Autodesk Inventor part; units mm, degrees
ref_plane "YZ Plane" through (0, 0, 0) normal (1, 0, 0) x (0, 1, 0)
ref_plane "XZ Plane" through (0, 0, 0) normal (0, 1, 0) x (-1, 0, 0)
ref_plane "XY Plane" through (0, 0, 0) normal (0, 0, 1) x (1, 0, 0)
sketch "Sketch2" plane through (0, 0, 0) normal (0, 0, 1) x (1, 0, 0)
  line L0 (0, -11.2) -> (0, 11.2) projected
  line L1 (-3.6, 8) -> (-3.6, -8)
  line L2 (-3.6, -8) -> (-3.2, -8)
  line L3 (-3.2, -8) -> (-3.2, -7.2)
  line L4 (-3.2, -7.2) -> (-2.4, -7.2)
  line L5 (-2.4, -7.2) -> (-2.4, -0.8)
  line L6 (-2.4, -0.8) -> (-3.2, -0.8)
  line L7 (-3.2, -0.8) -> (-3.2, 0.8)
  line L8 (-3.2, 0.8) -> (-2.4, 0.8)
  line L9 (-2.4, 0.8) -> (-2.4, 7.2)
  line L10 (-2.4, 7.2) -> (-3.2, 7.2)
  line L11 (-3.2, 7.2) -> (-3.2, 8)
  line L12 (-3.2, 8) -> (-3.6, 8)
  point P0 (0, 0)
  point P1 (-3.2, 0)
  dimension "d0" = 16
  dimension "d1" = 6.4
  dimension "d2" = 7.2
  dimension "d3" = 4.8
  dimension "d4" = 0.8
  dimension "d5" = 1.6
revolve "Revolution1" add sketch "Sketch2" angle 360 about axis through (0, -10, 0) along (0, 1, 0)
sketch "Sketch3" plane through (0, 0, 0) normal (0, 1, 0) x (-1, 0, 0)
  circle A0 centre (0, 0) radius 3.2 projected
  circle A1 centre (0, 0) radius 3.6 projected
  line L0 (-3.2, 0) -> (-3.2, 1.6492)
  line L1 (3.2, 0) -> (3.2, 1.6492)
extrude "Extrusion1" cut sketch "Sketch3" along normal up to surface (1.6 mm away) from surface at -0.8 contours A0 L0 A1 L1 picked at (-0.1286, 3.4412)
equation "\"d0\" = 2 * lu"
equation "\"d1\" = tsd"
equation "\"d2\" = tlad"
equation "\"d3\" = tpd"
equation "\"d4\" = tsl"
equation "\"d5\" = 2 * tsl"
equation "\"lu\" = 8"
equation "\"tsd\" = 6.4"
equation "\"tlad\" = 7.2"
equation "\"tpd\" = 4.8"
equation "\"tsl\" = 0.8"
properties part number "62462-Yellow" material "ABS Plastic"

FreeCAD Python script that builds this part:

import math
import FreeCAD as App
import Part
import Sketcher
from FreeCAD import Vector
Q = App.Units.Quantity


def add_polygon(sketch, points):
    """Adds a closed chain of lines whose ends are joined by coincident constraints."""
    first, n = sketch.GeometryCount, len(points)
    for a, b in zip(points, points[1:] + points[:1]):
        sketch.addGeometry(Part.LineSegment(App.Vector(*a, 0), App.Vector(*b, 0)), False)
    for i in range(n):
        sketch.addConstraint(Sketcher.Constraint("Coincident", first + i, 2, first + (i + 1) % n, 1))

doc = App.newDocument("Part")
body = doc.addObject("PartDesign::Body", "Body")

sketch1 = body.newObject("Sketcher::SketchObject", "Sketch")
sketch1.AttachmentSupport = (doc.getObject("XY_Plane"), [""])
sketch1.MapMode = "FlatFace"
add_polygon(sketch1, [(-3.2, 8), (-3.6, 8), (-3.6, -8), (-3.2, -8), (-3.2, -7.2), (-2.4, -7.2), (-2.4, -0.8), (-3.2, -0.8), (-3.2, 0.8), (-2.4, 0.8), (-2.4, 7.2), (-3.2, 7.2)])
sketch1.addConstraint(Sketcher.Constraint("Horizontal", 0))
sketch1.addConstraint(Sketcher.Constraint("Vertical", 1))
sketch1.addConstraint(Sketcher.Constraint("Horizontal", 2))
sketch1.addConstraint(Sketcher.Constraint("Vertical", 3))
sketch1.addConstraint(Sketcher.Constraint("Horizontal", 4))
sketch1.addConstraint(Sketcher.Constraint("Vertical", 5))
sketch1.addConstraint(Sketcher.Constraint("Horizontal", 6))
sketch1.addConstraint(Sketcher.Constraint("Vertical", 7))
sketch1.addConstraint(Sketcher.Constraint("Horizontal", 8))
sketch1.addConstraint(Sketcher.Constraint("Vertical", 9))
sketch1.addConstraint(Sketcher.Constraint("Horizontal", 10))
sketch1.addConstraint(Sketcher.Constraint("Vertical", 11))
sketch1.addConstraint(Sketcher.Constraint("Symmetric", 5, 2, 8, 2, -1))
sketch1.addConstraint(Sketcher.Constraint("Symmetric", 3, 2, 10, 2, -1))
sketch1.addConstraint(Sketcher.Constraint("Vertical", 3, 2, 6, 2))
sketch1.addConstraint(Sketcher.Constraint("Equal", 10, 3))
sketch1.addConstraint(Sketcher.Constraint("Equal", 3, 11))
sketch1.addConstraint(Sketcher.Constraint("DistanceY", 1, 2, 1, 1, Q("16 mm")))
sketch1.addConstraint(Sketcher.Constraint("DistanceX", 4, 1, 4, 2, Q("0.8 mm")))
sketch1.addConstraint(Sketcher.Constraint("DistanceY", 5, 1, 5, 2, Q("6.4 mm")))
sketch1.addConstraint(Sketcher.Constraint("DistanceX", 0, 2, 0, 1, Q("0.4 mm")))
sketch1.addConstraint(Sketcher.Constraint("DistanceX", 0, 2, -1, 1, Q("3.6 mm")))
revolution = body.newObject("PartDesign::Revolution", "Revolution")
revolution.Profile = sketch1
revolution.ReferenceAxis = (sketch1, ["V_Axis"])
revolution.Angle = 360

sketch2 = body.newObject("Sketcher::SketchObject", "Sketch001")
sketch2.AttachmentSupport = (doc.getObject("XZ_Plane"), [""])
sketch2.MapMode = "FlatFace"
sketch2.AttachmentOffset = App.Placement(Vector(0, 0, 0.8), App.Rotation())
sketch2.addGeometry(Part.ArcOfCircle(Part.Circle(Vector(0, 0, 0), Vector(0, 0, 1), 3.2), math.radians(0), math.radians(180)), False)
sketch2.addGeometry(Part.LineSegment(Vector(-3.2, 0, 0), Vector(-3.2, 1.6492, 0)), False)
sketch2.addGeometry(Part.ArcOfCircle(Part.Circle(Vector(0, 0, 0), Vector(0, 0, 1), 3.6), math.radians(27.265447), math.radians(152.734553)), False)
sketch2.addGeometry(Part.LineSegment(Vector(3.2, 1.6492, 0), Vector(3.2, 0, 0)), False)
sketch2.addConstraint(Sketcher.Constraint("Tangent", 0, 2, 1, 1))
sketch2.addConstraint(Sketcher.Constraint("Coincident", 1, 2, 2, 2))
sketch2.addConstraint(Sketcher.Constraint("Coincident", 2, 1, 3, 1))
sketch2.addConstraint(Sketcher.Constraint("Tangent", 3, 2, 0, 1))
sketch2.addConstraint(Sketcher.Constraint("Vertical", 1))
sketch2.addConstraint(Sketcher.Constraint("Vertical", 3))
sketch2.addConstraint(Sketcher.Constraint("Coincident", 0, 3, -1, 1))
sketch2.addConstraint(Sketcher.Constraint("Coincident", 2, 3, -1, 1))
sketch2.addConstraint(Sketcher.Constraint("Radius", 0, Q("3.2 mm")))
sketch2.addConstraint(Sketcher.Constraint("Radius", 2, Q("3.6 mm")))
pocket1 = body.newObject("PartDesign::Pocket", "Pocket")
pocket1.Profile = sketch2
pocket1.Length = 1.6

doc.recompute()
